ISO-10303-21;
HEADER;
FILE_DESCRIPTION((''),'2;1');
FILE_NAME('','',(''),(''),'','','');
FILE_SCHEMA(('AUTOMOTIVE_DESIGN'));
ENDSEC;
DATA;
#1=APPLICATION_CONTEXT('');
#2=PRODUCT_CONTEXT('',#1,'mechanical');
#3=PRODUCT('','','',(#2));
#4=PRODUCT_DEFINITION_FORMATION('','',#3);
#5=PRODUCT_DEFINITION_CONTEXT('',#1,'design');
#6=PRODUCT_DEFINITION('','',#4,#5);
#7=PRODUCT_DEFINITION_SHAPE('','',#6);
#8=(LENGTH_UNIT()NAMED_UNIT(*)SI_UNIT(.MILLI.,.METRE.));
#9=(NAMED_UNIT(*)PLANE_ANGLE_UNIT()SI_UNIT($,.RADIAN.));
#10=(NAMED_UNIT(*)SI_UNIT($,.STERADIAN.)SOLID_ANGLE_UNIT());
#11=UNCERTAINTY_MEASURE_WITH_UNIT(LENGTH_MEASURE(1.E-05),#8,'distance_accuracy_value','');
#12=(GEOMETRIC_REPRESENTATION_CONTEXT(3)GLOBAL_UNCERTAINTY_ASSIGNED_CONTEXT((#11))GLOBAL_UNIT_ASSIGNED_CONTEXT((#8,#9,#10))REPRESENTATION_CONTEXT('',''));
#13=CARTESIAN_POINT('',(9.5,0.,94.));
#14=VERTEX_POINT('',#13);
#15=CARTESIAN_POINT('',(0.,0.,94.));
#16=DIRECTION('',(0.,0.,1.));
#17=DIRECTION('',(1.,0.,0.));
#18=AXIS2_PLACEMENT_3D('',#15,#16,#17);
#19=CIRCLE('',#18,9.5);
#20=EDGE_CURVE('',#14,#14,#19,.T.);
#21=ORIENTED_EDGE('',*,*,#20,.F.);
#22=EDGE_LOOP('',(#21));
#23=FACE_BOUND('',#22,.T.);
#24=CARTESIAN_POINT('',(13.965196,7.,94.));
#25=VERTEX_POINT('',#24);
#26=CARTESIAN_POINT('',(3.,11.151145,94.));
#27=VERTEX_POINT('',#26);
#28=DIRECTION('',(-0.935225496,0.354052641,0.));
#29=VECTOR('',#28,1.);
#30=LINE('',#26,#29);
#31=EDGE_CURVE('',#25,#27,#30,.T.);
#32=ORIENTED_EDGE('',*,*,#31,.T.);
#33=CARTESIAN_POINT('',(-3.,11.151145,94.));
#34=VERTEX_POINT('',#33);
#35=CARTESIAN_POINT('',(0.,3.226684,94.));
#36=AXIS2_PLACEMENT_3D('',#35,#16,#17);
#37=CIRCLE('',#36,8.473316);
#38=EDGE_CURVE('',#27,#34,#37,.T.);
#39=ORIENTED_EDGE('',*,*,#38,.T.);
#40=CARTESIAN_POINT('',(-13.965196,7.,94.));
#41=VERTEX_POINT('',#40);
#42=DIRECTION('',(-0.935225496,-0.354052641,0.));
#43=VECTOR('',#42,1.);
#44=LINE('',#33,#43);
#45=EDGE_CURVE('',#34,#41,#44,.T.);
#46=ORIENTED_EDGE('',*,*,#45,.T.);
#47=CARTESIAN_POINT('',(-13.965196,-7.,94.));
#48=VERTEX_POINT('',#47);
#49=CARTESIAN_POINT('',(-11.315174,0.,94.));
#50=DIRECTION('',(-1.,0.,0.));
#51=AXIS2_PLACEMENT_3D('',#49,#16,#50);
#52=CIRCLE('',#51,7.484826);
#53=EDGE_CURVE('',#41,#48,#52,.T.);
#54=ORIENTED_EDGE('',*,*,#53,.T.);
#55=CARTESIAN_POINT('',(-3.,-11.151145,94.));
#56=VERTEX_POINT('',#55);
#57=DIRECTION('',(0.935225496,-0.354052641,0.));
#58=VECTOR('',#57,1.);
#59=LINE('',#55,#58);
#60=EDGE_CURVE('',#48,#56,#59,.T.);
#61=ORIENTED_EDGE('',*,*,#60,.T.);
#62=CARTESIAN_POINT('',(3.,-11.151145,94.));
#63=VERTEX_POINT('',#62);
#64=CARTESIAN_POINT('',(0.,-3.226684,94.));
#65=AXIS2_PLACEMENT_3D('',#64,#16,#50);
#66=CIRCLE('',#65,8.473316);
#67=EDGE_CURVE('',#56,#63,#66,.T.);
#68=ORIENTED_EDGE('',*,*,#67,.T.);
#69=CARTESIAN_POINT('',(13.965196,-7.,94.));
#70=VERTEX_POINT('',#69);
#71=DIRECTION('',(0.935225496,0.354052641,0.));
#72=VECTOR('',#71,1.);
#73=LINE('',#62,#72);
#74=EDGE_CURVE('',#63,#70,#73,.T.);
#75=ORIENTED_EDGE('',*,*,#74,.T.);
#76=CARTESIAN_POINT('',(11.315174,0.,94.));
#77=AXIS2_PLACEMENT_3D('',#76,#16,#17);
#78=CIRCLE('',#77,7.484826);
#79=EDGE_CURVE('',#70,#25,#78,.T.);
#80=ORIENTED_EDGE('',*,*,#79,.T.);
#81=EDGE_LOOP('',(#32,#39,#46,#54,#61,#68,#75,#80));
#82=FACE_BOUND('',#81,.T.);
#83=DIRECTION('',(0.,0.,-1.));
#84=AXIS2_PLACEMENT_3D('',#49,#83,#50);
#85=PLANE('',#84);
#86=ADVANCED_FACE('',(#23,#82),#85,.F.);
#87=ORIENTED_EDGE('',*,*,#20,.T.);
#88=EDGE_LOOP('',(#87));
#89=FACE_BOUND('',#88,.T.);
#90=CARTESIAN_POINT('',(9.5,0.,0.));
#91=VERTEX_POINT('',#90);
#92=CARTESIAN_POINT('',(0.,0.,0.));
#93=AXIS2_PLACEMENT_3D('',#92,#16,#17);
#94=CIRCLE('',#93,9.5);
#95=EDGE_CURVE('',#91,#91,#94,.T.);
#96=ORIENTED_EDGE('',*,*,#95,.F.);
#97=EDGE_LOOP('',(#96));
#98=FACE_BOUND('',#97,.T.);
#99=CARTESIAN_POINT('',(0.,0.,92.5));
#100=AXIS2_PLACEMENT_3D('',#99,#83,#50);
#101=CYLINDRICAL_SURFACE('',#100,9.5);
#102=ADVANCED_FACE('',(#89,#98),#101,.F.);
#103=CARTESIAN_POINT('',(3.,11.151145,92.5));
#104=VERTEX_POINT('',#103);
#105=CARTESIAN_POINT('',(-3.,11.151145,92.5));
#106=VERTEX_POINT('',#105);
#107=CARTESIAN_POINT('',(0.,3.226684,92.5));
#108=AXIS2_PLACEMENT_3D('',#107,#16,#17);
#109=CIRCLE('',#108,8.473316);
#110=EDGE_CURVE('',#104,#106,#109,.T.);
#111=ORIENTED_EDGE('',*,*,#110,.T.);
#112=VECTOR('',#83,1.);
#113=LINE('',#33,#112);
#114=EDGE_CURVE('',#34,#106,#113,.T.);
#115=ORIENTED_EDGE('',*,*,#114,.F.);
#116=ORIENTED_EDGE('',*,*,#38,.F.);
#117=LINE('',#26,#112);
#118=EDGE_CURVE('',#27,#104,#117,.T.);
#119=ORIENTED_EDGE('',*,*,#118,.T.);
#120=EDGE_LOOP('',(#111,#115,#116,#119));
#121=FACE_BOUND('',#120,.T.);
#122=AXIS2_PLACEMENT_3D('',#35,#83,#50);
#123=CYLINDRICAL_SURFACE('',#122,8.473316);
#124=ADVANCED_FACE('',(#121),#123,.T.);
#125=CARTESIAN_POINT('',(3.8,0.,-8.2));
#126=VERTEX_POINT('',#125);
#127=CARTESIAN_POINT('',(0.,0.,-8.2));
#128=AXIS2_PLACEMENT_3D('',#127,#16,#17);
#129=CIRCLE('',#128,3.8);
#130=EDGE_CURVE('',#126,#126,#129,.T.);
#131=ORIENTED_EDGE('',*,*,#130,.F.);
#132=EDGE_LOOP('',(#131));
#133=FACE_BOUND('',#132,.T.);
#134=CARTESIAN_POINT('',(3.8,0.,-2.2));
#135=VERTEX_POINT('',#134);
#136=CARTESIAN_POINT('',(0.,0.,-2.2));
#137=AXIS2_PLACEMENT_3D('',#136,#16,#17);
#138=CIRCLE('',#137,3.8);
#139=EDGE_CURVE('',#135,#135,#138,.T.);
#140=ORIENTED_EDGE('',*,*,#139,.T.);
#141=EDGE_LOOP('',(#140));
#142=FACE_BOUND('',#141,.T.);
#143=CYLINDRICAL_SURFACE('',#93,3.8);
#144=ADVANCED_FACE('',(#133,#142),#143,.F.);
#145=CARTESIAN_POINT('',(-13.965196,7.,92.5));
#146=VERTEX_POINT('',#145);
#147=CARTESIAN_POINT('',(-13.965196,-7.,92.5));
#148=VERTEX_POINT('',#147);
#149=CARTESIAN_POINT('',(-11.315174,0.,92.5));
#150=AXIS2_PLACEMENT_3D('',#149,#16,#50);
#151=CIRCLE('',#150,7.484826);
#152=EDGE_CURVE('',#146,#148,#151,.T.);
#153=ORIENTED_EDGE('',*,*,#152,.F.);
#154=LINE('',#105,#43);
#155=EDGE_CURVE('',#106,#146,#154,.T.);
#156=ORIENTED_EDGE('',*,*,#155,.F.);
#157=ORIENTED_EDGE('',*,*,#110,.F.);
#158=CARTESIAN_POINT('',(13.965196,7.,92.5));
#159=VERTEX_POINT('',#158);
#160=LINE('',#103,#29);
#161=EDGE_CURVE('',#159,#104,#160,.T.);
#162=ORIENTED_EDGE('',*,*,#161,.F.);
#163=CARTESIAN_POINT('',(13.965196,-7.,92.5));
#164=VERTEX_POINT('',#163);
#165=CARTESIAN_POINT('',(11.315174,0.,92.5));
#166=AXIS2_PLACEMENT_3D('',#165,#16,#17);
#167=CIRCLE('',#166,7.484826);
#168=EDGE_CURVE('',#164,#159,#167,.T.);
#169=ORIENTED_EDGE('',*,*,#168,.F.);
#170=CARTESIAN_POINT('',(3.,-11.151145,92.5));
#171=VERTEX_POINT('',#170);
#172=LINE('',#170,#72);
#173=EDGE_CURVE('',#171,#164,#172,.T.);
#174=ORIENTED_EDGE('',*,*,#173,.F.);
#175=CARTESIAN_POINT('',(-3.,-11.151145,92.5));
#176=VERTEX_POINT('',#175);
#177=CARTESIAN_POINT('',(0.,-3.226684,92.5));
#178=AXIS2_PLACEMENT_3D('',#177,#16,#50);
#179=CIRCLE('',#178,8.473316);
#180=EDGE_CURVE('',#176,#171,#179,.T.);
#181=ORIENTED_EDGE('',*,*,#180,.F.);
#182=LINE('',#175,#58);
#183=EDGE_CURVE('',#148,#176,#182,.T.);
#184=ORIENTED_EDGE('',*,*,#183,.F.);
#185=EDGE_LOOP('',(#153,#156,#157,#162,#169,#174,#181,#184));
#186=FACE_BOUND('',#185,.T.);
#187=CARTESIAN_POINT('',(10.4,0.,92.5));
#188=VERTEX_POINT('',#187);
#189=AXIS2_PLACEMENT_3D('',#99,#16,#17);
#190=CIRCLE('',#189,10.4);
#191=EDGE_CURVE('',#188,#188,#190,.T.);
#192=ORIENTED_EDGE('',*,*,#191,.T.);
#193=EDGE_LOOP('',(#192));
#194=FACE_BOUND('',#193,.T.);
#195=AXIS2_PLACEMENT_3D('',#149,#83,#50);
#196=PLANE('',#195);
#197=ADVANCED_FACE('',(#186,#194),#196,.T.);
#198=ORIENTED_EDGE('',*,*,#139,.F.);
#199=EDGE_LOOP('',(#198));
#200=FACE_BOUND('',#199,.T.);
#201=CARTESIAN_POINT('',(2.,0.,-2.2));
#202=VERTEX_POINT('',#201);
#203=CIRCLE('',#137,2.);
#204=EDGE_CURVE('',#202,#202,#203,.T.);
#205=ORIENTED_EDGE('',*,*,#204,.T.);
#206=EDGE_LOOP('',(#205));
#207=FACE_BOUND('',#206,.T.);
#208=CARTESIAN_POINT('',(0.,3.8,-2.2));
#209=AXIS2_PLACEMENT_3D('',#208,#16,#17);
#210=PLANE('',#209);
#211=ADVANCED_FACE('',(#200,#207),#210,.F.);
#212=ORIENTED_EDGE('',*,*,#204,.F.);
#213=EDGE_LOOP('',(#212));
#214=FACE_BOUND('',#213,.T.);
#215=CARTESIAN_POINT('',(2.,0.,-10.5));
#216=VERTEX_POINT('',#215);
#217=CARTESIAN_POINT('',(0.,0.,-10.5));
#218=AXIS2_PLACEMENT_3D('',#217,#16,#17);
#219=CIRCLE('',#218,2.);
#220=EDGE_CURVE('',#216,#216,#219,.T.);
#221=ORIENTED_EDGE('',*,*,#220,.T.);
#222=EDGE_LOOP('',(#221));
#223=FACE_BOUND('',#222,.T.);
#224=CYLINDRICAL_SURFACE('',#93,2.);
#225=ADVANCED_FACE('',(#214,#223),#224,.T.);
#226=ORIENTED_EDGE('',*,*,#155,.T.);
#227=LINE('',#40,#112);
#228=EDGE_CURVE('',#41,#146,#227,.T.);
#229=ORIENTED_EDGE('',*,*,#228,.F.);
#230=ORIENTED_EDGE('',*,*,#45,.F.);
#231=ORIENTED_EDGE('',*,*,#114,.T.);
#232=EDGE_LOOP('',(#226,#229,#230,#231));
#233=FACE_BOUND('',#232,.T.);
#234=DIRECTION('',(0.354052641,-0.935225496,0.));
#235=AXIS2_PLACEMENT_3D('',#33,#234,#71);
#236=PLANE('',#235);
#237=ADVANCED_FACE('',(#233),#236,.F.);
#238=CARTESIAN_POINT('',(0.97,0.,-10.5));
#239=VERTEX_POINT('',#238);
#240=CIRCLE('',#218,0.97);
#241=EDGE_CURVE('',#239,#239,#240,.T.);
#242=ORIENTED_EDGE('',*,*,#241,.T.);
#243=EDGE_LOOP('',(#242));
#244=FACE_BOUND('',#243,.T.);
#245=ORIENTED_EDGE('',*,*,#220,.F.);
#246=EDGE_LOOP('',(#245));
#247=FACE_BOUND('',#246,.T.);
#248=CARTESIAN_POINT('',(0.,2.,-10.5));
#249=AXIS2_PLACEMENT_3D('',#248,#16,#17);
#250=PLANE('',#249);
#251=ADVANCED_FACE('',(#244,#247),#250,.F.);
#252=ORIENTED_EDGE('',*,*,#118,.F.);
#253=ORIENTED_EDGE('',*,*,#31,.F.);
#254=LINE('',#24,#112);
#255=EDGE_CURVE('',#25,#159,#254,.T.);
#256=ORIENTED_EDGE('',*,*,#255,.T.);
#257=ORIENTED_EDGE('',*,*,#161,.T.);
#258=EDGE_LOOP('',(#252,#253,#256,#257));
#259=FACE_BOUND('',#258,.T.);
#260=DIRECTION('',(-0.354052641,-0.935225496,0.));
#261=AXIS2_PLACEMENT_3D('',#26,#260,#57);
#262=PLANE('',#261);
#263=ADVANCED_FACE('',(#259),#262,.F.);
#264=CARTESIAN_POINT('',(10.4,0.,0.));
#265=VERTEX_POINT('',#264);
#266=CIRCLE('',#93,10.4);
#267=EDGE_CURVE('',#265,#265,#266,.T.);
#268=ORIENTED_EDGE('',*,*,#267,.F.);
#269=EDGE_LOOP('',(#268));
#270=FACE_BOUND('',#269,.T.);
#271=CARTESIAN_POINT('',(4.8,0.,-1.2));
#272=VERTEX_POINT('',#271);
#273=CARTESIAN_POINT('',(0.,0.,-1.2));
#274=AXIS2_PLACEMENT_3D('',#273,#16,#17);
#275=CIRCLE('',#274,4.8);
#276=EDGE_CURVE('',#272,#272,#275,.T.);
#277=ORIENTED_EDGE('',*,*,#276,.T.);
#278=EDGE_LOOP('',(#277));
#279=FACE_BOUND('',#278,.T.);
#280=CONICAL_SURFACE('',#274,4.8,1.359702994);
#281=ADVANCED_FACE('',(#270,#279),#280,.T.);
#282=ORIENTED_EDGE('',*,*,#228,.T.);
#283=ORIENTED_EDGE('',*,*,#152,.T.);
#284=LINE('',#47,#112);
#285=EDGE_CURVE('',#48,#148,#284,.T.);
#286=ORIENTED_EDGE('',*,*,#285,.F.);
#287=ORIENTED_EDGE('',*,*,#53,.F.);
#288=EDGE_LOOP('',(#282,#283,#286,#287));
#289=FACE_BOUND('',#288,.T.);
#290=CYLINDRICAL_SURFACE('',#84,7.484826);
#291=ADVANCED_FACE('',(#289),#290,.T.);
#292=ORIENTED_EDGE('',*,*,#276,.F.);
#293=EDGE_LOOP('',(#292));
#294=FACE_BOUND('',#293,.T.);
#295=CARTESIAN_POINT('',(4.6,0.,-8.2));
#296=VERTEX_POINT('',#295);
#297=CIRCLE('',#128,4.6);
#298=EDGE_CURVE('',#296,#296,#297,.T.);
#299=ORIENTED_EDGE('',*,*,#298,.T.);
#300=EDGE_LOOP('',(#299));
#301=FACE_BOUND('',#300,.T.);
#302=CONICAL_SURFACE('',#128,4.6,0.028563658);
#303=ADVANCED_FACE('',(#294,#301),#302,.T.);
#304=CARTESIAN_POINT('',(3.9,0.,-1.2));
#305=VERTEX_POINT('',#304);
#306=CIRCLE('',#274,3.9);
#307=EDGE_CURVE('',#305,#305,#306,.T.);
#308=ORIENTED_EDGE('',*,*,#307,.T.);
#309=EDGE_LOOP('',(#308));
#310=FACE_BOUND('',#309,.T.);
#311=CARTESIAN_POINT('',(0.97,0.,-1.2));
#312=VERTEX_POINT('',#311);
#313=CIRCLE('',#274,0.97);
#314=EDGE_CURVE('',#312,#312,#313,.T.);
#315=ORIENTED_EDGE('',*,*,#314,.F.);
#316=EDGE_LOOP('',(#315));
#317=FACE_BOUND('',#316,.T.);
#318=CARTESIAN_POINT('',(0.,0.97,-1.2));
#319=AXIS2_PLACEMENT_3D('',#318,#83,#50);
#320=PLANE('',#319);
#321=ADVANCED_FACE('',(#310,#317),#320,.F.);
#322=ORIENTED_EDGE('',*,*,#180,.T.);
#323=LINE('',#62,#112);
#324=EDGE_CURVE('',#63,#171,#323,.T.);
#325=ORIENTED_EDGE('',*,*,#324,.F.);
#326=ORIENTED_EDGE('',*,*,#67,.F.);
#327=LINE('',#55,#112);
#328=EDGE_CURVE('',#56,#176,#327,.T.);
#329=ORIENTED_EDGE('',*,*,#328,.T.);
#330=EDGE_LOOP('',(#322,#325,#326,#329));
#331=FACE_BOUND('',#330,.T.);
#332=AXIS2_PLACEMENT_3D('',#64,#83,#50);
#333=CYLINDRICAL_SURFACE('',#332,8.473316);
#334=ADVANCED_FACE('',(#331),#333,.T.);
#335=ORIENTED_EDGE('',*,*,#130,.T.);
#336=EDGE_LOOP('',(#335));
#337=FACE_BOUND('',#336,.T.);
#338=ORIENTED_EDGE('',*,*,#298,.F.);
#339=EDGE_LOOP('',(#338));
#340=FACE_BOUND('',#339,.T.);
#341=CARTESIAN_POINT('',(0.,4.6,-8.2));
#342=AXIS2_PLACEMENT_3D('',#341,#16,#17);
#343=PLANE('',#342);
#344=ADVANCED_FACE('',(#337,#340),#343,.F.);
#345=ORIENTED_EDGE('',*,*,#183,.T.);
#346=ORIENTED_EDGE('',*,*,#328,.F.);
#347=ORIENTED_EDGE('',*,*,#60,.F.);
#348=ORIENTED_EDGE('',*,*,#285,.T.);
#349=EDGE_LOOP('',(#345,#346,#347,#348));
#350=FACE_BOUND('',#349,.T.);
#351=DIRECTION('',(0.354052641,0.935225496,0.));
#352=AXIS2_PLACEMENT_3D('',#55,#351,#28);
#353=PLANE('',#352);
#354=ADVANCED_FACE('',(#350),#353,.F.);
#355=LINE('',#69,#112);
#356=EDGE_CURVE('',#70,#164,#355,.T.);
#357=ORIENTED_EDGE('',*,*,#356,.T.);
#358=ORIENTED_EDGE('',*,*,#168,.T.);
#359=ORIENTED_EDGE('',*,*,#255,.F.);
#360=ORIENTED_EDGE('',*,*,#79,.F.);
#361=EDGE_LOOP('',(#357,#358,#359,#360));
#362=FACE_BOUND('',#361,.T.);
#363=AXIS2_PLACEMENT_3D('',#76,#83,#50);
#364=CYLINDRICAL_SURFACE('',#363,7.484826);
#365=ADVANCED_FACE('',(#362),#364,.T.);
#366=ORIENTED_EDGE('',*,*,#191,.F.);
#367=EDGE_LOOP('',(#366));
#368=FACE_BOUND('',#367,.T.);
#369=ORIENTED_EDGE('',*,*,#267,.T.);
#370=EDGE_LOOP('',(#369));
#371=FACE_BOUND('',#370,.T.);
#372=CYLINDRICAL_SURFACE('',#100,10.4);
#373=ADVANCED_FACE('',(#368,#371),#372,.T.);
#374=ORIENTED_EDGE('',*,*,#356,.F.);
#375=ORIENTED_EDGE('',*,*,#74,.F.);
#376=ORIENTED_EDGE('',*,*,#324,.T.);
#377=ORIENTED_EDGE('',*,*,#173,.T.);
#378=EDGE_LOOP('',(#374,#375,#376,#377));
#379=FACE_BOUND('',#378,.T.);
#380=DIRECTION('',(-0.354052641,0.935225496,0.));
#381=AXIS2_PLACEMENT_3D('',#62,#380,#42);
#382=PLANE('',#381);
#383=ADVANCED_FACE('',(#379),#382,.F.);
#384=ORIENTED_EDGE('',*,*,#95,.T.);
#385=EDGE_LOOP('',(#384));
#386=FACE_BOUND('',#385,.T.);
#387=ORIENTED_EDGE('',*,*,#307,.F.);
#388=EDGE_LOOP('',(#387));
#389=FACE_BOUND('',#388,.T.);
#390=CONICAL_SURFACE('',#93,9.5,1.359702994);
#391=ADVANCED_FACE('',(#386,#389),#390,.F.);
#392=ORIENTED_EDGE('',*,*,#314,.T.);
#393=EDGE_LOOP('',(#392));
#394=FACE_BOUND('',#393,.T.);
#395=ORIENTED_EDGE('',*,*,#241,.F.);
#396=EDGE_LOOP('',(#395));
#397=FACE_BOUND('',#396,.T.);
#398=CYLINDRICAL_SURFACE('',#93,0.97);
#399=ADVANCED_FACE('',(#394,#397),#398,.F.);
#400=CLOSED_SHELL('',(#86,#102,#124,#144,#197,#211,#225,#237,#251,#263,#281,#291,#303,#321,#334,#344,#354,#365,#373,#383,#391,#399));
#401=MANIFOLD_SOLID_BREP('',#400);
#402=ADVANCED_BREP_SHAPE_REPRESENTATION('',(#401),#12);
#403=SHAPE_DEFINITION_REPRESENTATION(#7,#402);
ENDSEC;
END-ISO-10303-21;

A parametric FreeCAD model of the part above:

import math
import FreeCAD as App
import Part
import Sketcher

V = App.Vector

doc = App.newDocument("Part")
params = doc.addObject("Spreadsheet::Sheet", "Params")
for row, (alias, value) in enumerate([
    ("sketch1_diameter", "19 mm"),
    ("sketch1_diameter2", "20.8 mm"),
    ("pad1_length", "92.5 mm"),
    ("sketch2_height", "6 mm"),
    ("sketch2_width", "0.9 mm"),
    ("sketch2_width2", "1.8 mm"),
    ("sketch2_width3", "0.8 mm"),
    ("sketch2_height2", "9.3 mm"),
    ("revolution_angle", "360 deg"),
    ("sketch3_diameter", "19 mm"),
    ("pad2_length", "1.5 mm"),
], start=1):
    params.set(f"A{row}", alias)
    params.set(f"B{row}", "=" + value)
    params.setAlias(f"B{row}", alias)

body = doc.addObject("PartDesign::Body", "Body")

# Sketch on XY plane
sketch1 = body.newObject("Sketcher::SketchObject", "Sketch")
sketch1.AttachmentSupport = (doc.getObject("XY_Plane"), [""])
sketch1.MapMode = "FlatFace"
sketch1.addGeometry(Part.Circle(V(0, 0, 0), V(0, 0, 1), 10.4), False)
sketch1.addGeometry(Part.Circle(V(0, 0, 0), V(0, 0, 1), 9.5), False)
sketch1.addConstraint(Sketcher.Constraint("Coincident", 0, 3, -1, 1))
sketch1.addConstraint(Sketcher.Constraint("Coincident", 1, 3, -1, 1))
sketch1.addConstraint(Sketcher.Constraint("Diameter", 1, 19.0))
sketch1.addConstraint(Sketcher.Constraint("Diameter", 0, 20.8))
sketch1.setExpression("Constraints[2]", "Params.sketch1_diameter")
sketch1.setExpression("Constraints[3]", "Params.sketch1_diameter2")
pad1 = body.newObject("PartDesign::Pad", "Pad")
pad1.Profile = sketch1
pad1.setExpression("Length", "Params.pad1_length")

# Sketch on YZ plane
sketch2 = body.newObject("Sketcher::SketchObject", "Sketch001")
sketch2.AttachmentSupport = (doc.getObject("YZ_Plane"), [""])
sketch2.MapMode = "FlatFace"
sketch2.addGeometry(Part.LineSegment(V(4.8, -1.2, 0), V(10.4, 0, 0)), False)
sketch2.addGeometry(Part.LineSegment(V(10.4, 0, 0), V(9.5, 0, 0)), False)
sketch2.addGeometry(Part.LineSegment(V(9.5, 0, 0), V(3.9, -1.2, 0)), False)
sketch2.addGeometry(Part.LineSegment(V(3.9, -1.2, 0), V(0.97, -1.2, 0)), False)
sketch2.addGeometry(Part.LineSegment(V(0.97, -1.2, 0), V(0.97, -10.5, 0)), False)
sketch2.addGeometry(Part.LineSegment(V(0.97, -10.5, 0), V(2, -10.5, 0)), False)
sketch2.addGeometry(Part.LineSegment(V(2, -10.5, 0), V(2, -2.2, 0)), False)
sketch2.addGeometry(Part.LineSegment(V(2, -2.2, 0), V(3.8, -2.2, 0)), False)
sketch2.addGeometry(Part.LineSegment(V(3.8, -2.2, 0), V(3.8, -8.2, 0)), False)
sketch2.addGeometry(Part.LineSegment(V(3.8, -8.2, 0), V(4.6, -8.2, 0)), False)
sketch2.addGeometry(Part.LineSegment(V(4.6, -8.2, 0), V(4.8, -1.2, 0)), False)
sketch2.addConstraint(Sketcher.Constraint("Coincident", 0, 2, 1, 1))
sketch2.addConstraint(Sketcher.Constraint("Coincident", 1, 2, 2, 1))
sketch2.addConstraint(Sketcher.Constraint("Coincident", 2, 2, 3, 1))
sketch2.addConstraint(Sketcher.Constraint("Coincident", 3, 2, 4, 1))
sketch2.addConstraint(Sketcher.Constraint("Coincident", 4, 2, 5, 1))
sketch2.addConstraint(Sketcher.Constraint("Coincident", 5, 2, 6, 1))
sketch2.addConstraint(Sketcher.Constraint("Coincident", 6, 2, 7, 1))
sketch2.addConstraint(Sketcher.Constraint("Coincident", 7, 2, 8, 1))
sketch2.addConstraint(Sketcher.Constraint("Coincident", 8, 2, 9, 1))
sketch2.addConstraint(Sketcher.Constraint("Coincident", 9, 2, 10, 1))
sketch2.addConstraint(Sketcher.Constraint("Coincident", 10, 2, 0, 1))
sketch2.addConstraint(Sketcher.Constraint("Horizontal", 1))
sketch2.addConstraint(Sketcher.Constraint("Horizontal", 3))
sketch2.addConstraint(Sketcher.Constraint("Vertical", 4))
sketch2.addConstraint(Sketcher.Constraint("Horizontal", 5))
sketch2.addConstraint(Sketcher.Constraint("Vertical", 6))
sketch2.addConstraint(Sketcher.Constraint("Horizontal", 7))
sketch2.addConstraint(Sketcher.Constraint("Vertical", 8))
sketch2.addConstraint(Sketcher.Constraint("Horizontal", 9))
sketch2.addConstraint(Sketcher.Constraint("PointOnObject", 0, 2, -1))
sketch2.addConstraint(Sketcher.Constraint("Parallel", 0, 2))
sketch2.addConstraint(Sketcher.Constraint("Horizontal", 3, 2, 10, 2))
sketch2.addConstraint(Sketcher.Constraint("DistanceY", 8, 2, 8, 1, 6.0))
sketch2.addConstraint(Sketcher.Constraint("DistanceX", 1, 2, 1, 1, 0.9))
sketch2.addConstraint(Sketcher.Constraint("DistanceX", 7, 1, 7, 2, 1.8))
sketch2.addConstraint(Sketcher.Constraint("DistanceX", 9, 1, 9, 2, 0.8))
sketch2.addConstraint(Sketcher.Constraint("DistanceY", 4, 2, 4, 1, 9.3))
sketch2.addConstraint(Sketcher.Constraint("DistanceY", 6, 1, 6, 2, 8.3))
sketch2.addConstraint(Sketcher.Constraint("DistanceX", -1, 1, 5, 2, 2.0))
sketch2.addConstraint(Sketcher.Constraint("DistanceX", 7, 2, 10, 2, 1.0))
sketch2.addConstraint(Sketcher.Constraint("DistanceX", 3, 2, 3, 1, 2.93))
sketch2.addConstraint(Sketcher.Constraint("DistanceX", -1, 1, 0, 2, 10.4))
sketch2.addConstraint(Sketcher.Constraint("DistanceY", 2, 2, -1, 1, 1.2))
sketch2.setExpression("Constraints[22]", "Params.sketch2_height")
sketch2.setExpression("Constraints[23]", "Params.sketch2_width")
sketch2.setExpression("Constraints[24]", "Params.sketch2_width2")
sketch2.setExpression("Constraints[25]", "Params.sketch2_width3")
sketch2.setExpression("Constraints[26]", "Params.sketch2_height2")
revolution = body.newObject("PartDesign::Revolution", "Revolution")
revolution.Profile = sketch2
revolution.ReferenceAxis = (sketch2, ["V_Axis"])
revolution.setExpression("Angle", "Params.revolution_angle")

# Sketch on XY plane
sketch3 = body.newObject("Sketcher::SketchObject", "Sketch002")
sketch3.AttachmentSupport = (doc.getObject("XY_Plane"), [""])
sketch3.MapMode = "FlatFace"
sketch3.AttachmentOffset = App.Placement(V(0, 0, 92.5), App.Rotation())
sketch3.addGeometry(Part.LineSegment(V(-3, 11.151145, 0), V(-13.965196, 7, 0)), False)
sketch3.addGeometry(Part.ArcOfCircle(Part.Circle(V(-11.315174, 0, 0), V(0, 0, 1), 7.484826), math.radians(110.735394), math.radians(249.264606)), False)
sketch3.addGeometry(Part.LineSegment(V(-13.965196, -7, 0), V(-3, -11.151145, 0)), False)
sketch3.addGeometry(Part.ArcOfCircle(Part.Circle(V(0, -3.226684, 0), V(0, 0, 1), 8.473316), math.radians(-110.735394), math.radians(-69.264606)), False)
sketch3.addGeometry(Part.LineSegment(V(3, -11.151145, 0), V(13.965196, -7, 0)), False)
sketch3.addGeometry(Part.ArcOfCircle(Part.Circle(V(11.315174, 0, 0), V(0, 0, 1), 7.484826), math.radians(-69.264606), math.radians(69.264606)), False)
sketch3.addGeometry(Part.LineSegment(V(13.965196, 7, 0), V(3, 11.151145, 0)), False)
sketch3.addGeometry(Part.ArcOfCircle(Part.Circle(V(0, 3.226684, 0), V(0, 0, 1), 8.473316), math.radians(69.264606), math.radians(110.735394)), False)
sketch3.addGeometry(Part.Circle(V(0, 0, 0), V(0, 0, 1), 9.5), False)
sketch3.addConstraint(Sketcher.Constraint("Tangent", 0, 2, 1, 1))
sketch3.addConstraint(Sketcher.Constraint("Tangent", 1, 2, 2, 1))
sketch3.addConstraint(Sketcher.Constraint("Tangent", 2, 2, 3, 1))
sketch3.addConstraint(Sketcher.Constraint("Tangent", 3, 2, 4, 1))
sketch3.addConstraint(Sketcher.Constraint("Tangent", 4, 2, 5, 1))
sketch3.addConstraint(Sketcher.Constraint("Tangent", 5, 2, 6, 1))
sketch3.addConstraint(Sketcher.Constraint("Tangent", 6, 2, 7, 1))
sketch3.addConstraint(Sketcher.Constraint("Tangent", 7, 2, 0, 1))
sketch3.addConstraint(Sketcher.Constraint("Coincident", 8, 3, -1, 1))
sketch3.addConstraint(Sketcher.Constraint("Equal", 1, 5))
sketch3.addConstraint(Sketcher.Constraint("Equal", 3, 7))
sketch3.addConstraint(Sketcher.Constraint("Symmetric", 1, 3, 5, 3, -1, 1))
sketch3.addConstraint(Sketcher.Constraint("Symmetric", 3, 3, 7, 3, -1, 1))
sketch3.addConstraint(Sketcher.Constraint("Symmetric", 2, 2, 3, 2, -2))
sketch3.addConstraint(Sketcher.Constraint("Diameter", 8, 19.0))
sketch3.addConstraint(Sketcher.Constraint("DistanceY", -1, 1, 0, 2, 7.0))
sketch3.addConstraint(Sketcher.Constraint("DistanceX", 2, 2, -1, 1, 3.0))
sketch3.addConstraint(Sketcher.Constraint("Radius", 1, 7.484826))
sketch3.addConstraint(Sketcher.Constraint("DistanceX", 1, 3, 5, 3, 22.630348))
sketch3.setExpression("Constraints[14]", "Params.sketch3_diameter")
pad2 = body.newObject("PartDesign::Pad", "Pad001")
pad2.Profile = sketch3
pad2.setExpression("Length", "Params.pad2_length")

doc.recompute()
